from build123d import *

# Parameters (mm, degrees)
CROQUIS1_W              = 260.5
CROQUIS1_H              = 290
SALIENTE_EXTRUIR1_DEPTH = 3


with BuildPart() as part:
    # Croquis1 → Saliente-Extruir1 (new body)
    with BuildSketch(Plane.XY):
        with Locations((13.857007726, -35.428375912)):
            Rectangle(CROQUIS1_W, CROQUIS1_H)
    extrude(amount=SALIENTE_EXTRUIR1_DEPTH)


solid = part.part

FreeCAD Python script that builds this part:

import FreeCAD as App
import Part
import Sketcher
from FreeCAD import Vector
Q = App.Units.Quantity

doc = App.newDocument("Part")
body = doc.addObject("PartDesign::Body", "Body")

# Sketch on XY plane
sketch1 = body.newObject("Sketcher::SketchObject", "Sketch")
sketch1.AttachmentSupport = (doc.getObject("XY_Plane"), [""])
sketch1.MapMode = "FlatFace"
sketch1.addGeometry(Part.LineSegment(Vector(-116, 110, 0), Vector(-116, -180, 0)), False)
sketch1.addGeometry(Part.LineSegment(Vector(-116, -180, 0), Vector(144, -180, 0)), False)
sketch1.addGeometry(Part.LineSegment(Vector(144, -180, 0), Vector(144, 110, 0)), False)
sketch1.addGeometry(Part.LineSegment(Vector(144, 110, 0), Vector(-116, 110, 0)), False)
sketch1.addConstraint(Sketcher.Constraint("Coincident", 0, 2, 1, 1))
sketch1.addConstraint(Sketcher.Constraint("Coincident", 1, 2, 2, 1))
sketch1.addConstraint(Sketcher.Constraint("Coincident", 2, 2, 3, 1))
sketch1.addConstraint(Sketcher.Constraint("Coincident", 3, 2, 0, 1))
sketch1.addConstraint(Sketcher.Constraint("Vertical", 0))
sketch1.addConstraint(Sketcher.Constraint("Horizontal", 1))
sketch1.addConstraint(Sketcher.Constraint("Vertical", 2))
sketch1.addConstraint(Sketcher.Constraint("Horizontal", 3))
sketch1.addConstraint(Sketcher.Constraint("DistanceY", 0, 2, 0, 1, Q("290 mm")))
sketch1.addConstraint(Sketcher.Constraint("DistanceX", 1, 1, 1, 2, Q("260.5 mm")))
sketch1.addConstraint(Sketcher.Constraint("DistanceX", 0, 2, -1, 1, Q("116.392992 mm")))
sketch1.addConstraint(Sketcher.Constraint("DistanceY", 0, 2, -1, 1, Q("180.428376 mm")))
pad1 = body.newObject("PartDesign::Pad", "Pad")
pad1.Profile = sketch1
pad1.Length = 3

doc.recompute()
